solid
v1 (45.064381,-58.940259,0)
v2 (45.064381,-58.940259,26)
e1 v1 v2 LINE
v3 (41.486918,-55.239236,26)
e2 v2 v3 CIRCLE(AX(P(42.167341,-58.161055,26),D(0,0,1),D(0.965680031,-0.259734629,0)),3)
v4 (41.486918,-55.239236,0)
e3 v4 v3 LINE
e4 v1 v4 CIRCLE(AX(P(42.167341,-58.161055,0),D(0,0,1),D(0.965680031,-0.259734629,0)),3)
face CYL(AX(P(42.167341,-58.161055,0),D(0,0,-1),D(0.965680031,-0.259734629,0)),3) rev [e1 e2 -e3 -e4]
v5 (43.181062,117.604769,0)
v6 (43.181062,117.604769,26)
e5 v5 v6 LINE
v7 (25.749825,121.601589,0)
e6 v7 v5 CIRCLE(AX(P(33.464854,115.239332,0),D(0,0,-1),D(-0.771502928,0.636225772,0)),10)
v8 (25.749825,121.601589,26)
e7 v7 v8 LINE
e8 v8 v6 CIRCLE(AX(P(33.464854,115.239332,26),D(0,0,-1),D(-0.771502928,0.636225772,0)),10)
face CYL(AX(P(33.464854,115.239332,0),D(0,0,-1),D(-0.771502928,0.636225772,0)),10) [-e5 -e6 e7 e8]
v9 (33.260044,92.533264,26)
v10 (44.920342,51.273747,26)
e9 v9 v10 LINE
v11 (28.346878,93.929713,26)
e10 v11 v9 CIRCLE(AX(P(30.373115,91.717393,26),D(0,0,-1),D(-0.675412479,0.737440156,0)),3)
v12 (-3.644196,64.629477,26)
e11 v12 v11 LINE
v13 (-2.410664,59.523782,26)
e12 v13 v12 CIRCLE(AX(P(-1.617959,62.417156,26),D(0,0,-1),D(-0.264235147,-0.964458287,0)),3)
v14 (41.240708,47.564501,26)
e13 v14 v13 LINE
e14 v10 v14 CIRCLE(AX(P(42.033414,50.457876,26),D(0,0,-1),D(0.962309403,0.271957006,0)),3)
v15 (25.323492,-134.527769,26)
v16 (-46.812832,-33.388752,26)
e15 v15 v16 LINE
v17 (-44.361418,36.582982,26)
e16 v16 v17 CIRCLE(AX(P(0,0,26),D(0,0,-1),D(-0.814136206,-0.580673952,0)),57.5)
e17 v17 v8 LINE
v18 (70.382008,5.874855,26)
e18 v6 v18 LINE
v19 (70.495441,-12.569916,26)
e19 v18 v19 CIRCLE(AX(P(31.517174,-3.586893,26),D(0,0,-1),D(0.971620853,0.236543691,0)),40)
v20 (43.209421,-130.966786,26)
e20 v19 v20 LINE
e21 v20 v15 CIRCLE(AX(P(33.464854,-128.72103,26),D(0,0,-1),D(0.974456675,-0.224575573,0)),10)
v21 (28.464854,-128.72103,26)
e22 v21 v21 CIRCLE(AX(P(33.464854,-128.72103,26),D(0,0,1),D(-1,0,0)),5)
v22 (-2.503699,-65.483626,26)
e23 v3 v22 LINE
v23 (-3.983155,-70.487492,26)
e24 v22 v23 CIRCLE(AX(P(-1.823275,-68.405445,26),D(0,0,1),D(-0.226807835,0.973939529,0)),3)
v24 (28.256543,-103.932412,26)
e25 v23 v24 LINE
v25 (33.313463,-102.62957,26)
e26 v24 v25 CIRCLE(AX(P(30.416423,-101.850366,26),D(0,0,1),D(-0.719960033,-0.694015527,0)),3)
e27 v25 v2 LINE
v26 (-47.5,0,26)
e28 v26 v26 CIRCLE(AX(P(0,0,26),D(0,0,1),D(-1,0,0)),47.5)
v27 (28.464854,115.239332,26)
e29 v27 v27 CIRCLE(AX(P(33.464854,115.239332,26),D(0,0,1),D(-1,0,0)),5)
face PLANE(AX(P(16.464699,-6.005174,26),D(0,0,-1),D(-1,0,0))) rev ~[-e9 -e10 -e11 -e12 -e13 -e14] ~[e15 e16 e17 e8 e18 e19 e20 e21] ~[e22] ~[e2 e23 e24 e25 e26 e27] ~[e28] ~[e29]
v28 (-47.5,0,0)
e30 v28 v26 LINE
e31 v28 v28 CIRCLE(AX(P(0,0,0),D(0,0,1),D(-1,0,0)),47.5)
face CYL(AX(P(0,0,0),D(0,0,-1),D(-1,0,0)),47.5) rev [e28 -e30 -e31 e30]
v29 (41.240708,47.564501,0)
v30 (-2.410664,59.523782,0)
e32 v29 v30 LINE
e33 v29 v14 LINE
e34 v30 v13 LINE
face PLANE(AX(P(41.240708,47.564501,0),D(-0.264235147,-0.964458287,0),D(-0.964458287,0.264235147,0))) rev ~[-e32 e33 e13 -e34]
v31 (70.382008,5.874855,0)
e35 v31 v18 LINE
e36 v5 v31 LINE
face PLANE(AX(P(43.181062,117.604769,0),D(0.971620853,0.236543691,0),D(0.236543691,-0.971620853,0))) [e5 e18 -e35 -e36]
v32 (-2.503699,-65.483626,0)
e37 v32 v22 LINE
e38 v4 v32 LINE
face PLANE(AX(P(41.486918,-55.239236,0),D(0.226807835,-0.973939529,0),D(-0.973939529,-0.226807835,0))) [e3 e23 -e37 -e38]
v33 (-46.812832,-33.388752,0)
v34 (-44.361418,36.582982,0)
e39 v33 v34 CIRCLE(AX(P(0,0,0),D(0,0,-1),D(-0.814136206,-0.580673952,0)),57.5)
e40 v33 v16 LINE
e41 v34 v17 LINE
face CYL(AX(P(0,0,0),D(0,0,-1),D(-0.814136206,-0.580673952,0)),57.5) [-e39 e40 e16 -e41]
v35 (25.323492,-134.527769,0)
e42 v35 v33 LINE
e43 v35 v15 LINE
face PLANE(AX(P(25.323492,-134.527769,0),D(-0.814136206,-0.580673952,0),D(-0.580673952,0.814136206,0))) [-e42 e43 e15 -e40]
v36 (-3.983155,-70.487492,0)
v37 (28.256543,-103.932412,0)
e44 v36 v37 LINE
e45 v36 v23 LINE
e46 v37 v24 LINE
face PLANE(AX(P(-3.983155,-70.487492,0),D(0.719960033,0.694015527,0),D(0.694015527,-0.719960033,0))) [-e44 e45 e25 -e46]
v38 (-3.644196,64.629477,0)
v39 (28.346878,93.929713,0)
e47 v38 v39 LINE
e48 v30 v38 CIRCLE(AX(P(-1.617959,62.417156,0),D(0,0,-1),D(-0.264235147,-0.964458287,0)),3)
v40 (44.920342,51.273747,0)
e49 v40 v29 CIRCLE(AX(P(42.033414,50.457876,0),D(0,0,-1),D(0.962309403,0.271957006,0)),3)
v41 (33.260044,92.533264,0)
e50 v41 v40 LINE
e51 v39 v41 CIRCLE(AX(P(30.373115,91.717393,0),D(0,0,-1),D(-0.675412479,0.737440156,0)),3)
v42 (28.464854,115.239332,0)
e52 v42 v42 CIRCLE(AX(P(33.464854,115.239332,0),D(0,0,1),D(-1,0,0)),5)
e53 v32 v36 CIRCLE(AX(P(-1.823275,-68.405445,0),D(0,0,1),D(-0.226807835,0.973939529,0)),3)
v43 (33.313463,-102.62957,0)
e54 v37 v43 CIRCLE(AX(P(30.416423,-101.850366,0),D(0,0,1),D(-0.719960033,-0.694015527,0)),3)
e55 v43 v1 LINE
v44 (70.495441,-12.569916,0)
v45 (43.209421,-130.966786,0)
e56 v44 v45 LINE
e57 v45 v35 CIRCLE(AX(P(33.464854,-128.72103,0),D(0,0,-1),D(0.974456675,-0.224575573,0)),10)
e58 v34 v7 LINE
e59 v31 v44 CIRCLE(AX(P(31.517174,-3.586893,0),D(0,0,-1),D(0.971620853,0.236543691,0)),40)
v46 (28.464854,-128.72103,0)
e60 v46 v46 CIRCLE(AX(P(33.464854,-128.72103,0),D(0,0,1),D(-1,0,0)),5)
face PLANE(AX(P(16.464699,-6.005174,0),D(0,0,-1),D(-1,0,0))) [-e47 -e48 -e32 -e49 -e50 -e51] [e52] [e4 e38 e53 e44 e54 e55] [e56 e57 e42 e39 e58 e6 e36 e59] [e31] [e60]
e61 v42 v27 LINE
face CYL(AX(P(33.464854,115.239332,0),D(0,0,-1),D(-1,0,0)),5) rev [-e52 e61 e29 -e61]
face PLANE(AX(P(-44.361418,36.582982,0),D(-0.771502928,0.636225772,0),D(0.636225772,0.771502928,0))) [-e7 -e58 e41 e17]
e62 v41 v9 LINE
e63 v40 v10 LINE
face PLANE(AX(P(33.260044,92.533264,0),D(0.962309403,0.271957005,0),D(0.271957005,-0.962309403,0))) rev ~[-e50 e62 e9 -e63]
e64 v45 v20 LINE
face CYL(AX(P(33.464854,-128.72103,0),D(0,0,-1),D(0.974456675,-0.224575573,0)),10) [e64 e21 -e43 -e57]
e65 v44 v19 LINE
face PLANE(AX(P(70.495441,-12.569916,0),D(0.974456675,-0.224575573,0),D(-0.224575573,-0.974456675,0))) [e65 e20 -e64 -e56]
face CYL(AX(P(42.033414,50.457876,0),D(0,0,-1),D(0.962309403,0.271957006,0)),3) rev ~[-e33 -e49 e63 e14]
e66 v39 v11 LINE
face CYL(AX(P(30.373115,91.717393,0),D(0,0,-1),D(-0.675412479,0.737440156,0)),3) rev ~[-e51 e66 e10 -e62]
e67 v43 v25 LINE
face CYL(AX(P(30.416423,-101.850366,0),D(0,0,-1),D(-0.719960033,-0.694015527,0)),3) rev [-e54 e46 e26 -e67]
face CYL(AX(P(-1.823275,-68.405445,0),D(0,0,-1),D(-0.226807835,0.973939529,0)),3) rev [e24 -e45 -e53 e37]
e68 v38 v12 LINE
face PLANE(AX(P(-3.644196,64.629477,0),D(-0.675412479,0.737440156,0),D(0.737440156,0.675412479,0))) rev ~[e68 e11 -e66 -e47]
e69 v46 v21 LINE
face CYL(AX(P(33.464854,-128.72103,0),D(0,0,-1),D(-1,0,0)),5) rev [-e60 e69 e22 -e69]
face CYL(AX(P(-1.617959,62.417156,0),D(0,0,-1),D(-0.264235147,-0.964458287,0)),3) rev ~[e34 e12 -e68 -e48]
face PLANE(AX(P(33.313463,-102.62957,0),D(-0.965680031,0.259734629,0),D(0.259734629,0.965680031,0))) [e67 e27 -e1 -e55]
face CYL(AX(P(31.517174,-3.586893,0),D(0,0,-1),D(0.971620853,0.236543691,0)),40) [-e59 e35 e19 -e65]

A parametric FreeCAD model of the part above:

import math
import FreeCAD as App
import Part
import Sketcher
from FreeCAD import Vector

doc = App.newDocument("Part")
body = doc.addObject("PartDesign::Body", "Body")

sketch1 = body.newObject("Sketcher::SketchObject", "Sketch")
sketch1.AttachmentSupport = (doc.getObject("XY_Plane"), [""])
sketch1.MapMode = "FlatFace"
sketch1.addGeometry([
    Part.LineSegment(Vector(25.749825, 121.601589, 0), Vector(-44.361418, 36.582982, 0)),
    Part.ArcOfCircle(Part.Circle(Vector(0, 0, 0), Vector(0, 0, 1), 57.5), math.radians(140.489043), math.radians(215.497959)),
    Part.LineSegment(Vector(-46.812832, -33.388752, 0), Vector(25.323492, -134.527769, 0)),
    Part.ArcOfCircle(Part.Circle(Vector(33.464854, -128.72103, 0), Vector(0, 0, 1), 10), math.radians(-144.502041), math.radians(-12.977922)),
    Part.LineSegment(Vector(43.209421, -130.966786, 0), Vector(70.495441, -12.569916, 0)),
    Part.ArcOfCircle(Part.Circle(Vector(31.517174, -3.586893, 0), Vector(0, 0, 1), 40), math.radians(-12.977922), math.radians(13.682636)),
    Part.LineSegment(Vector(70.382008, 5.874855, 0), Vector(43.181062, 117.604769, 0)),
    Part.ArcOfCircle(Part.Circle(Vector(33.464854, 115.239332, 0), Vector(0, 0, 1), 10), math.radians(13.682636), math.radians(140.489043)),
    Part.Circle(Vector(33.464854, -128.72103, 0), Vector(0, 0, 1), 5),
    Part.Circle(Vector(33.464854, 115.239332, 0), Vector(0, 0, 1), 5),
    Part.Circle(Vector(0, 0, 0), Vector(0, 0, 1), 47.5),
], False)
sketch1.addConstraint([
    Sketcher.Constraint("Coincident", 0, 2, 1, 1),
    Sketcher.Constraint("Coincident", 1, 2, 2, 1),
    Sketcher.Constraint("Coincident", 2, 2, 3, 1),
    Sketcher.Constraint("Coincident", 3, 2, 4, 1),
    Sketcher.Constraint("Coincident", 4, 2, 5, 1),
    Sketcher.Constraint("Coincident", 5, 2, 6, 1),
    Sketcher.Constraint("Coincident", 6, 2, 7, 1),
    Sketcher.Constraint("Coincident", 7, 2, 0, 1),
    Sketcher.Constraint("Coincident", 1, 3, -1, 1),
    Sketcher.Constraint("Coincident", 10, 3, -1, 1),
    Sketcher.Constraint("Coincident", 8, 3, 3, 3),
    Sketcher.Constraint("Coincident", 9, 3, 7, 3),
    Sketcher.Constraint("Diameter", 8, 10.0),
    Sketcher.Constraint("Diameter", 9, 10.0),
    Sketcher.Constraint("Diameter", 10, 95.0),
    Sketcher.Constraint("Radius", 3, 10.0),
    Sketcher.Constraint("Radius", 5, 40.0),
    Sketcher.Constraint("Radius", 7, 10.0),
    Sketcher.Constraint("Radius", 1, 57.5),
    Sketcher.Constraint("Distance", 2, 124.22862),
    Sketcher.Constraint("DistanceY", 3, 3, -1, 1, 128.72103),
    Sketcher.Constraint("DistanceY", -1, 1, 7, 3, 115.239332),
    Sketcher.Constraint("DistanceX", 0, 2, -1, 1, 44.361418),
    Sketcher.Constraint("DistanceX", 1, 2, -1, 1, 46.812832),
    Sketcher.Constraint("DistanceX", -1, 1, 2, 2, 25.323492),
    Sketcher.Constraint("DistanceX", -1, 1, 3, 2, 43.209421),
    Sketcher.Constraint("DistanceX", -1, 1, 4, 2, 70.495441),
    Sketcher.Constraint("DistanceX", -1, 1, 5, 2, 70.382008),
    Sketcher.Constraint("DistanceY", -1, 1, 6, 2, 117.604769),
    Sketcher.Constraint("DistanceY", -1, 1, 7, 2, 121.601589),
    Sketcher.Constraint("DistanceX", 5, 3, 3, 3, 1.94768),
    Sketcher.Constraint("DistanceX", 5, 3, 7, 3, 1.94768),
    Sketcher.Constraint("DistanceY", 1, 2, 5, 3, 29.801859),
])
pad1 = body.newObject("PartDesign::Pad", "Pad")
pad1.Profile = sketch1
pad1.Length = 26

sketch2 = body.newObject("Sketcher::SketchObject", "Sketch001")
sketch2.AttachmentSupport = (doc.getObject("XY_Plane"), [""])
sketch2.MapMode = "FlatFace"
sketch2.addGeometry([
    Part.LineSegment(Vector(33.260044, 92.533264, 0), Vector(44.920342, 51.273747, 0)),
    Part.ArcOfCircle(Part.Circle(Vector(42.033414, 50.457876, 0), Vector(0, 0, 1), 3), math.radians(-105.32151), math.radians(15.780753)),
    Part.LineSegment(Vector(41.240708, 47.564501, 0), Vector(-2.410664, 59.523782, 0)),
    Part.ArcOfCircle(Part.Circle(Vector(-1.617959, 62.417156, 0), Vector(0, 0, 1), 3), math.radians(132.48619), math.radians(254.67849)),
    Part.LineSegment(Vector(-3.644196, 64.629477, 0), Vector(28.346878, 93.929713, 0)),
    Part.ArcOfCircle(Part.Circle(Vector(30.373115, 91.717393, 0), Vector(0, 0, 1), 3), math.radians(15.780753), math.radians(132.48619)),
    Part.LineSegment(Vector(-2.503699, -65.483626, 0), Vector(41.486918, -55.239236, 0)),
    Part.ArcOfCircle(Part.Circle(Vector(42.167341, -58.161055, 0), Vector(0, 0, 1), 3), math.radians(-15.054317), math.radians(103.109208)),
    Part.LineSegment(Vector(45.064381, -58.940259, 0), Vector(33.313463, -102.62957, 0)),
    Part.ArcOfCircle(Part.Circle(Vector(30.416423, -101.850366, 0), Vector(0, 0, 1), 3), math.radians(-136.051181), math.radians(-15.054317)),
    Part.LineSegment(Vector(28.256543, -103.932412, 0), Vector(-3.983155, -70.487492, 0)),
    Part.ArcOfCircle(Part.Circle(Vector(-1.823275, -68.405445, 0), Vector(0, 0, 1), 3), math.radians(103.109208), math.radians(223.948819)),
], False)
sketch2.addConstraint([
    Sketcher.Constraint("Coincident", 0, 2, 1, 2),
    Sketcher.Constraint("Coincident", 1, 1, 2, 1),
    Sketcher.Constraint("Coincident", 2, 2, 3, 2),
    Sketcher.Constraint("Coincident", 3, 1, 4, 1),
    Sketcher.Constraint("Coincident", 4, 2, 5, 2),
    Sketcher.Constraint("Coincident", 5, 1, 0, 1),
    Sketcher.Constraint("Coincident", 6, 2, 7, 2),
    Sketcher.Constraint("Coincident", 7, 1, 8, 1),
    Sketcher.Constraint("Coincident", 8, 2, 9, 2),
    Sketcher.Constraint("Coincident", 9, 1, 10, 1),
    Sketcher.Constraint("Coincident", 10, 2, 11, 2),
    Sketcher.Constraint("Coincident", 11, 1, 6, 1),
    Sketcher.Constraint("Radius", 1, 3.0),
    Sketcher.Constraint("Radius", 3, 3.0),
    Sketcher.Constraint("Radius", 5, 3.0),
    Sketcher.Constraint("Radius", 7, 3.0),
    Sketcher.Constraint("Radius", 9, 3.0),
    Sketcher.Constraint("Radius", 11, 3.0),
    Sketcher.Constraint("DistanceX", 7, 3, 0, 2, 2.753),
    Sketcher.Constraint("DistanceY", -1, 1, 1, 1, 47.564501),
    Sketcher.Constraint("DistanceX", 11, 1, -1, 1, 2.503699),
    Sketcher.Constraint("DistanceX", 5, 3, 1, 3, 11.660298),
    Sketcher.Constraint("DistanceX", 3, 3, 7, 3, 43.7853),
    Sketcher.Constraint("DistanceX", 11, 3, 9, 3, 32.239698),
    Sketcher.Constraint("DistanceY", 11, 3, 3, 3, 130.822601),
    Sketcher.Constraint("DistanceY", 1, 3, 3, 1, 14.171601),
    Sketcher.Constraint("DistanceX", 5, 1, 0, 2, 11.660298),
    Sketcher.Constraint("DistanceX", 9, 1, 7, 3, 13.910798),
    Sketcher.Constraint("DistanceX", 10, 2, 9, 1, 32.239698),
    Sketcher.Constraint("Distance", 0, 42.87552),
    Sketcher.Constraint("Distance", 2, 45.25999),
    Sketcher.Constraint("Distance", 4, 43.381248),
    Sketcher.Constraint("Distance", 6, 45.167708),
    Sketcher.Constraint("DistanceX", 3, 3, -1, 1, 1.617959),
    Sketcher.Constraint("DistanceX", -1, 1, 1, 1, 41.240708),
    Sketcher.Constraint("DistanceY", -1, 1, 2, 2, 59.523782),
    Sketcher.Constraint("DistanceX", -1, 1, 7, 1, 45.064381),
    Sketcher.Constraint("DistanceY", 7, 1, -1, 1, 58.940259),
    Sketcher.Constraint("DistanceY", 8, 2, -1, 1, 102.62957),
    Sketcher.Constraint("DistanceY", 10, 2, -1, 1, 70.487492),
    Sketcher.Constraint("DistanceY", 1, 3, 3, 3, 11.95928),
    Sketcher.Constraint("DistanceY", 9, 3, 7, 3, 43.689311),
])
pocket1 = body.newObject("PartDesign::Pocket", "Pocket")
pocket1.Profile = sketch2
pocket1.Length = 26
pocket1.Reversed = True

doc.recompute()
